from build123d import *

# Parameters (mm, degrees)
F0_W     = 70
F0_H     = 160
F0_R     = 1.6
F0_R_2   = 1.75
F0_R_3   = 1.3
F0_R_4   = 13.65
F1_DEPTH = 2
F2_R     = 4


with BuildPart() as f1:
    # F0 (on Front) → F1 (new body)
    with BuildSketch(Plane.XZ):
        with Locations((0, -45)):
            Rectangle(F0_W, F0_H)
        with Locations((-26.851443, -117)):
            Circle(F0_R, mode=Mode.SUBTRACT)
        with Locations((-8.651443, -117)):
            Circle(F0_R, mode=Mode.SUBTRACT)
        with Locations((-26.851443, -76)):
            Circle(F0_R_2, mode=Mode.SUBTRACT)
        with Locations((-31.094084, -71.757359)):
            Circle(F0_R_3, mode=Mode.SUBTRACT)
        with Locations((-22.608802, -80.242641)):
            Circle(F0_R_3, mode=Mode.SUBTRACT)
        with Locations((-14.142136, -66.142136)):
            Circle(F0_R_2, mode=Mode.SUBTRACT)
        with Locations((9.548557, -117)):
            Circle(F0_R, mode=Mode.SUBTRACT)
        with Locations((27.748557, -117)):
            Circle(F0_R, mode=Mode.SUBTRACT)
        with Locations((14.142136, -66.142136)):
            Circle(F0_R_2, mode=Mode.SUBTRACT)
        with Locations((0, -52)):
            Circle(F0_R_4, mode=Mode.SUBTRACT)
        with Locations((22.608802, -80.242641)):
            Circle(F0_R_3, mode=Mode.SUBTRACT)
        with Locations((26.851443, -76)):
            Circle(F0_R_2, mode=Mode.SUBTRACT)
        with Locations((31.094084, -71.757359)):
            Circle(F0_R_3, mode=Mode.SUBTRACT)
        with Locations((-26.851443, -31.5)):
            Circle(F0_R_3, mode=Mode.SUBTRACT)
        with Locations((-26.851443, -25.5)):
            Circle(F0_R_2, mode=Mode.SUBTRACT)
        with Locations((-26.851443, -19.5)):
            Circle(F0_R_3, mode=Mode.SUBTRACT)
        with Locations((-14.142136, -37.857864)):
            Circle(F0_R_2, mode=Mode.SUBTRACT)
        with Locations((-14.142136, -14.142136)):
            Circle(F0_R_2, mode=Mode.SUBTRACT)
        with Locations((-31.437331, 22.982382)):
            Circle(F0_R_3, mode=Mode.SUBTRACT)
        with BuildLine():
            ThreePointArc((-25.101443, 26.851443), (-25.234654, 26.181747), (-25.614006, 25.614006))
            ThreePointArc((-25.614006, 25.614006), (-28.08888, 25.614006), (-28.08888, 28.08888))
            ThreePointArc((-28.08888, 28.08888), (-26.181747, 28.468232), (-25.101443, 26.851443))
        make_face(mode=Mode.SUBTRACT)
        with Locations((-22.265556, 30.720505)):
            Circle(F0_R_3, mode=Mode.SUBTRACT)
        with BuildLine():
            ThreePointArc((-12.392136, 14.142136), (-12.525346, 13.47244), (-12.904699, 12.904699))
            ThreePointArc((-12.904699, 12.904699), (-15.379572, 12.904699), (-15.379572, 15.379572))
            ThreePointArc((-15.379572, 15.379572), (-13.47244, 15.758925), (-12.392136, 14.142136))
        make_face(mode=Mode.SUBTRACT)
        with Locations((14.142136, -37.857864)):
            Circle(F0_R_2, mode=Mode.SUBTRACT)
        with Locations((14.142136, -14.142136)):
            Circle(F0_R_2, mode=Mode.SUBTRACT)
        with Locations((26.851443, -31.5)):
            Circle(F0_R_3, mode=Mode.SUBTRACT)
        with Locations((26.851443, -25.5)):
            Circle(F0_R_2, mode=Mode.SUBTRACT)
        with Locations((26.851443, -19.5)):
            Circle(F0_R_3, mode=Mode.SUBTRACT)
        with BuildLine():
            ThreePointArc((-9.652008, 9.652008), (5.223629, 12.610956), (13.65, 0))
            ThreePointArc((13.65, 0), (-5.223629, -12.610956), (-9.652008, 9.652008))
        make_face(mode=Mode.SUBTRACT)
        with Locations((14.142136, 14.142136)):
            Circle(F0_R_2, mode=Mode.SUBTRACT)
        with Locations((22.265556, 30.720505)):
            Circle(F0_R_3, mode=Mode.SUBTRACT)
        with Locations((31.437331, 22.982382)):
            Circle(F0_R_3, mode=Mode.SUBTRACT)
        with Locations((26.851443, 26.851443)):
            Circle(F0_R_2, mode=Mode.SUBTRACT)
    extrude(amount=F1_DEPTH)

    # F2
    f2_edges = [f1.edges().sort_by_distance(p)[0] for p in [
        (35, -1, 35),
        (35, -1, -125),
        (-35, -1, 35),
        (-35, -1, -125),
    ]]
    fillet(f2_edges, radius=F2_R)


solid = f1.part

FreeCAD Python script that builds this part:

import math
import FreeCAD as App
import Part
import Sketcher
from FreeCAD import Vector


def edges_at(feature, points):
    """Names of the edges that pass closest to the given points."""
    edges = feature.Shape.Edges
    near = lambda p: min(range(len(edges)), key=lambda i: edges[i].distToShape(Part.Vertex(*p))[0])
    return sorted({f"Edge{near(p) + 1}" for p in points})


def add_polygon(sketch, points):
    """Adds a closed chain of lines whose ends are joined by coincident constraints."""
    first, n = sketch.GeometryCount, len(points)
    for a, b in zip(points, points[1:] + points[:1]):
        sketch.addGeometry(Part.LineSegment(App.Vector(*a, 0), App.Vector(*b, 0)), False)
    for i in range(n):
        sketch.addConstraint(Sketcher.Constraint("Coincident", first + i, 2, first + (i + 1) % n, 1))

doc = App.newDocument("Part")
body = doc.addObject("PartDesign::Body", "Body")

# Sketch on XZ plane
sketch1 = body.newObject("Sketcher::SketchObject", "Sketch")
sketch1.AttachmentSupport = (doc.getObject("XZ_Plane"), [""])
sketch1.MapMode = "FlatFace"
add_polygon(sketch1, [(-35, 35), (-35, -125), (35, -125), (35, 35)])  # lines 0-3
sketch1.addGeometry(Part.Circle(Vector(-26.9, -117, 0), Vector(0, 0, 1), 1.6), False)  # 4
sketch1.addGeometry(Part.Circle(Vector(-8.7, -117, 0), Vector(0, 0, 1), 1.6), False)  # 5
sketch1.addGeometry(Part.Circle(Vector(-31.1, -71.8, 0), Vector(0, 0, 1), 1.3), False)  # 6
sketch1.addGeometry(Part.Circle(Vector(-26.9, -76, 0), Vector(0, 0, 1), 1.8), False)  # 7
sketch1.addGeometry(Part.Circle(Vector(-22.6, -80.2, 0), Vector(0, 0, 1), 1.3), False)  # 8
sketch1.addGeometry(Part.Circle(Vector(-14.1, -66.1, 0), Vector(0, 0, 1), 1.8), False)  # 9
sketch1.addGeometry(Part.Circle(Vector(9.5, -117, 0), Vector(0, 0, 1), 1.6), False)  # 10
sketch1.addGeometry(Part.Circle(Vector(27.7, -117, 0), Vector(0, 0, 1), 1.6), False)  # 11
sketch1.addGeometry(Part.Circle(Vector(14.1, -66.1, 0), Vector(0, 0, 1), 1.8), False)  # 12
sketch1.addGeometry(Part.Circle(Vector(0, -52, 0), Vector(0, 0, 1), 13.7), False)  # 13
sketch1.addGeometry(Part.Circle(Vector(22.6, -80.2, 0), Vector(0, 0, 1), 1.3), False)  # 14
sketch1.addGeometry(Part.Circle(Vector(26.9, -76, 0), Vector(0, 0, 1), 1.8), False)  # 15
sketch1.addGeometry(Part.Circle(Vector(31.1, -71.8, 0), Vector(0, 0, 1), 1.3), False)  # 16
sketch1.addGeometry(Part.Circle(Vector(-26.9, -31.5, 0), Vector(0, 0, 1), 1.3), False)  # 17
sketch1.addGeometry(Part.Circle(Vector(-26.9, -25.5, 0), Vector(0, 0, 1), 1.8), False)  # 18
sketch1.addGeometry(Part.Circle(Vector(-26.9, -19.5, 0), Vector(0, 0, 1), 1.3), False)  # 19
sketch1.addGeometry(Part.Circle(Vector(-14.1, -37.9, 0), Vector(0, 0, 1), 1.8), False)  # 20
sketch1.addGeometry(Part.Circle(Vector(-14.1, -14.1, 0), Vector(0, 0, 1), 1.8), False)  # 21
sketch1.addGeometry(Part.Circle(Vector(-31.4, 23, 0), Vector(0, 0, 1), 1.3), False)  # 22
sketch1.addGeometry(Part.ArcOfCircle(Part.Circle(Vector(-26.9, 26.9, 0), Vector(0, 0, 1), 1.8), math.radians(0), math.radians(135)), False)  # 23
sketch1.addGeometry(Part.ArcOfCircle(Part.Circle(Vector(-26.9, 26.9, 0), Vector(0, 0, 1), 1.8), math.radians(-45), math.radians(0)), False)  # 24
sketch1.addGeometry(Part.ArcOfCircle(Part.Circle(Vector(-26.9, 26.9, 0), Vector(0, 0, 1), 1.8), math.radians(135), math.radians(315)), False)  # 25
sketch1.addGeometry(Part.Circle(Vector(-22.3, 30.7, 0), Vector(0, 0, 1), 1.3), False)  # 26
sketch1.addGeometry(Part.ArcOfCircle(Part.Circle(Vector(0, 0, 0), Vector(0, 0, 1), 13.7), math.radians(135), math.radians(360)), False)  # 27
sketch1.addGeometry(Part.ArcOfCircle(Part.Circle(Vector(0, 0, 0), Vector(0, 0, 1), 13.7), math.radians(0), math.radians(135)), False)  # 28
sketch1.addGeometry(Part.ArcOfCircle(Part.Circle(Vector(-14.1, 14.1, 0), Vector(0, 0, 1), 1.7), math.radians(0), math.radians(135)), False)  # 29
sketch1.addGeometry(Part.ArcOfCircle(Part.Circle(Vector(-14.1, 14.1, 0), Vector(0, 0, 1), 1.7), math.radians(-45), math.radians(0)), False)  # 30
sketch1.addGeometry(Part.ArcOfCircle(Part.Circle(Vector(-14.1, 14.1, 0), Vector(0, 0, 1), 1.7), math.radians(135), math.radians(315)), False)  # 31
sketch1.addGeometry(Part.Circle(Vector(14.1, -37.9, 0), Vector(0, 0, 1), 1.8), False)  # 32
sketch1.addGeometry(Part.Circle(Vector(14.1, -14.1, 0), Vector(0, 0, 1), 1.8), False)  # 33
sketch1.addGeometry(Part.Circle(Vector(26.9, -31.5, 0), Vector(0, 0, 1), 1.3), False)  # 34
sketch1.addGeometry(Part.Circle(Vector(26.9, -25.5, 0), Vector(0, 0, 1), 1.8), False)  # 35
sketch1.addGeometry(Part.Circle(Vector(26.9, -19.5, 0), Vector(0, 0, 1), 1.3), False)  # 36
sketch1.addGeometry(Part.Circle(Vector(14.1, 14.1, 0), Vector(0, 0, 1), 1.8), False)  # 37
sketch1.addGeometry(Part.Circle(Vector(22.3, 30.7, 0), Vector(0, 0, 1), 1.3), False)  # 38
sketch1.addGeometry(Part.Circle(Vector(26.9, 26.9, 0), Vector(0, 0, 1), 1.8), False)  # 39
sketch1.addGeometry(Part.Circle(Vector(31.4, 23, 0), Vector(0, 0, 1), 1.3), False)  # 40
sketch1.addConstraint([
    Sketcher.Constraint("Tangent", 23, 1, 24, 2),
    Sketcher.Constraint("Tangent", 24, 1, 25, 2),
    Sketcher.Constraint("Tangent", 25, 1, 23, 2),
    Sketcher.Constraint("Tangent", 27, 1, 28, 2),
    Sketcher.Constraint("Coincident", 28, 1, 27, 2),
    Sketcher.Constraint("Coincident", 29, 1, 30, 2),
    Sketcher.Constraint("Tangent", 30, 1, 31, 2),
    Sketcher.Constraint("Tangent", 31, 1, 29, 2),
    Sketcher.Constraint("Vertical", 0),
    Sketcher.Constraint("Horizontal", 1),
    Sketcher.Constraint("Vertical", 2),
    Sketcher.Constraint("Horizontal", 3),
    Sketcher.Constraint("Coincident", 27, 3, -1, 1),
    Sketcher.Constraint("Equal", 4, 5),
    Sketcher.Constraint("Equal", 6, 8),
    Sketcher.Constraint("Equal", 7, 9),
    Sketcher.Constraint("Equal", 5, 10),
    Sketcher.Constraint("Equal", 10, 11),
    Sketcher.Constraint("Equal", 9, 12),
    Sketcher.Constraint("Equal", 8, 14),
    Sketcher.Constraint("Equal", 12, 15),
    Sketcher.Constraint("Equal", 14, 16),
    Sketcher.Constraint("Equal", 16, 17),
    Sketcher.Constraint("Equal", 15, 18),
    Sketcher.Constraint("Equal", 17, 19),
    Sketcher.Constraint("Equal", 18, 20),
    Sketcher.Constraint("Equal", 20, 21),
    Sketcher.Constraint("Equal", 19, 22),
    Sketcher.Constraint("Equal", 21, 23),
    Sketcher.Constraint("Equal", 22, 26),
    Sketcher.Constraint("Equal", 13, 27),
    Sketcher.Constraint("Equal", 25, 29),
    Sketcher.Constraint("Equal", 29, 31),
    Sketcher.Constraint("Equal", 31, 32),
    Sketcher.Constraint("Equal", 32, 33),
    Sketcher.Constraint("Equal", 26, 34),
    Sketcher.Constraint("Equal", 33, 35),
    Sketcher.Constraint("Equal", 34, 36),
    Sketcher.Constraint("Equal", 35, 37),
    Sketcher.Constraint("Equal", 36, 38),
    Sketcher.Constraint("Equal", 37, 39),
    Sketcher.Constraint("Equal", 38, 40),
    Sketcher.Constraint("Symmetric", 29, 3, 33, 3, -1, 1),
    Sketcher.Constraint("Symmetric", 21, 3, 37, 3, -1, 1),
    Sketcher.Constraint("Symmetric", 9, 3, 12, 3, -2),
    Sketcher.Constraint("Symmetric", 8, 3, 14, 3, -2),
    Sketcher.Constraint("Symmetric", 7, 3, 15, 3, -2),
    Sketcher.Constraint("Symmetric", 6, 3, 16, 3, -2),
    Sketcher.Constraint("Symmetric", 20, 3, 32, 3, -2),
    Sketcher.Constraint("Symmetric", 21, 3, 33, 3, -2),
    Sketcher.Constraint("Symmetric", 17, 3, 34, 3, -2),
    Sketcher.Constraint("Symmetric", 18, 3, 35, 3, -2),
    Sketcher.Constraint("Symmetric", 19, 3, 36, 3, -2),
    Sketcher.Constraint("Symmetric", 26, 3, 38, 3, -2),
    Sketcher.Constraint("Symmetric", 23, 3, 39, 3, -2),
    Sketcher.Constraint("Symmetric", 22, 3, 40, 3, -2),
    Sketcher.Constraint("PointOnObject", 13, 3, -2),
    Sketcher.Constraint("PointOnObject", 28, 1, -1),
    Sketcher.Constraint("Horizontal", 4, 3, 5, 3),
    Sketcher.Constraint("Horizontal", 5, 3, 10, 3),
    Sketcher.Constraint("Horizontal", 10, 3, 11, 3),
    Sketcher.Constraint("Horizontal", 39, 3, 23, 1),
    Sketcher.Constraint("Horizontal", 37, 3, 29, 1),
    Sketcher.Constraint("Vertical", 4, 3, 7, 3),
    Sketcher.Constraint("Vertical", 7, 3, 17, 3),
    Sketcher.Constraint("Vertical", 17, 3, 18, 3),
    Sketcher.Constraint("Vertical", 18, 3, 19, 3),
    Sketcher.Constraint("Vertical", 9, 3, 20, 3),
    Sketcher.Constraint("Vertical", 20, 3, 21, 3),
    Sketcher.Constraint("Vertical", 19, 3, 23, 3),
    Sketcher.Constraint("Diameter", 4, 3.2),
    Sketcher.Constraint("Diameter", 6, 2.6),
    Sketcher.Constraint("Diameter", 7, 3.5),
    Sketcher.Constraint("Diameter", 13, 27.3),
    Sketcher.Constraint("DistanceX", 1, 1, 1, 2, 70.0),
    Sketcher.Constraint("DistanceY", 0, 2, 0, 1, 160.0),
    Sketcher.Constraint("DistanceY", 4, 3, -1, 1, 117.0),
    Sketcher.Constraint("DistanceY", 7, 3, -1, 1, 76.0),
    Sketcher.Constraint("DistanceY", 13, 3, -1, 1, 52.0),
    Sketcher.Constraint("DistanceX", 0, 2, -1, 1, 35.0),
    Sketcher.Constraint("DistanceY", 0, 2, -1, 1, 125.0),
    Sketcher.Constraint("DistanceY", 17, 3, 18, 3, 6.0),
    Sketcher.Constraint("DistanceY", 18, 3, 19, 3, 6.0),
    Sketcher.Constraint("DistanceY", 17, 3, -1, 1, 31.5),
    Sketcher.Constraint("DistanceX", 4, 3, 5, 3, 18.2),
    Sketcher.Constraint("DistanceX", 5, 3, 10, 3, 18.2),
    Sketcher.Constraint("DistanceX", 10, 3, 11, 3, 18.2),
    Sketcher.Constraint("DistanceX", 30, 1, -1, 1, 12.904699),
    Sketcher.Constraint("DistanceY", -1, 1, 30, 1, 12.904699),
    Sketcher.Constraint("DistanceY", 24, 1, 26, 3, 5.106499),
    Sketcher.Constraint("DistanceY", 6, 3, -1, 1, 71.757359),
    Sketcher.Constraint("DistanceY", 8, 3, -1, 1, 80.242641),
    Sketcher.Constraint("DistanceX", 22, 3, -1, 1, 31.437331),
    Sketcher.Constraint("DistanceX", 30, 3, -1, 1, 14.142128),
    Sketcher.Constraint("DistanceX", 25, 1, -1, 1, 28.08888),
    Sketcher.Constraint("DistanceY", -1, 1, 25, 1, 28.08888),
    Sketcher.Constraint("DistanceX", 27, 1, -1, 1, 9.652008),
    Sketcher.Constraint("DistanceX", 6, 3, 4, 3, 4.242641),
    Sketcher.Constraint("DistanceX", 7, 3, 8, 3, 4.242641),
    Sketcher.Constraint("DistanceX", 8, 3, 12, 3, 36.750938),
    Sketcher.Constraint("DistanceY", 9, 3, 20, 3, 28.284272),
    Sketcher.Constraint("DistanceY", 21, 3, 22, 3, 37.124518),
    Sketcher.Constraint("DistanceY", 25, 3, 26, 3, 3.869062),
    Sketcher.Constraint("DistanceX", 24, 3, 26, 3, 4.58589),
    Sketcher.Constraint("DistanceY", 30, 3, 31, 1, 1.23744),
    Sketcher.Constraint("DistanceY", 9, 3, -1, 1, 66.142136),
])
pad1 = body.newObject("PartDesign::Pad", "Pad")
pad1.Profile = sketch1
pad1.Length = 2
doc.recompute()

fillet = body.newObject("PartDesign::Fillet", "Fillet")
fillet.Base = (pad1, edges_at(pad1, [
    (35, -1, 35),
    (35, -1, -125),
    (-35, -1, 35),
    (-35, -1, -125),
]))
fillet.Radius = 4

doc.recompute()
